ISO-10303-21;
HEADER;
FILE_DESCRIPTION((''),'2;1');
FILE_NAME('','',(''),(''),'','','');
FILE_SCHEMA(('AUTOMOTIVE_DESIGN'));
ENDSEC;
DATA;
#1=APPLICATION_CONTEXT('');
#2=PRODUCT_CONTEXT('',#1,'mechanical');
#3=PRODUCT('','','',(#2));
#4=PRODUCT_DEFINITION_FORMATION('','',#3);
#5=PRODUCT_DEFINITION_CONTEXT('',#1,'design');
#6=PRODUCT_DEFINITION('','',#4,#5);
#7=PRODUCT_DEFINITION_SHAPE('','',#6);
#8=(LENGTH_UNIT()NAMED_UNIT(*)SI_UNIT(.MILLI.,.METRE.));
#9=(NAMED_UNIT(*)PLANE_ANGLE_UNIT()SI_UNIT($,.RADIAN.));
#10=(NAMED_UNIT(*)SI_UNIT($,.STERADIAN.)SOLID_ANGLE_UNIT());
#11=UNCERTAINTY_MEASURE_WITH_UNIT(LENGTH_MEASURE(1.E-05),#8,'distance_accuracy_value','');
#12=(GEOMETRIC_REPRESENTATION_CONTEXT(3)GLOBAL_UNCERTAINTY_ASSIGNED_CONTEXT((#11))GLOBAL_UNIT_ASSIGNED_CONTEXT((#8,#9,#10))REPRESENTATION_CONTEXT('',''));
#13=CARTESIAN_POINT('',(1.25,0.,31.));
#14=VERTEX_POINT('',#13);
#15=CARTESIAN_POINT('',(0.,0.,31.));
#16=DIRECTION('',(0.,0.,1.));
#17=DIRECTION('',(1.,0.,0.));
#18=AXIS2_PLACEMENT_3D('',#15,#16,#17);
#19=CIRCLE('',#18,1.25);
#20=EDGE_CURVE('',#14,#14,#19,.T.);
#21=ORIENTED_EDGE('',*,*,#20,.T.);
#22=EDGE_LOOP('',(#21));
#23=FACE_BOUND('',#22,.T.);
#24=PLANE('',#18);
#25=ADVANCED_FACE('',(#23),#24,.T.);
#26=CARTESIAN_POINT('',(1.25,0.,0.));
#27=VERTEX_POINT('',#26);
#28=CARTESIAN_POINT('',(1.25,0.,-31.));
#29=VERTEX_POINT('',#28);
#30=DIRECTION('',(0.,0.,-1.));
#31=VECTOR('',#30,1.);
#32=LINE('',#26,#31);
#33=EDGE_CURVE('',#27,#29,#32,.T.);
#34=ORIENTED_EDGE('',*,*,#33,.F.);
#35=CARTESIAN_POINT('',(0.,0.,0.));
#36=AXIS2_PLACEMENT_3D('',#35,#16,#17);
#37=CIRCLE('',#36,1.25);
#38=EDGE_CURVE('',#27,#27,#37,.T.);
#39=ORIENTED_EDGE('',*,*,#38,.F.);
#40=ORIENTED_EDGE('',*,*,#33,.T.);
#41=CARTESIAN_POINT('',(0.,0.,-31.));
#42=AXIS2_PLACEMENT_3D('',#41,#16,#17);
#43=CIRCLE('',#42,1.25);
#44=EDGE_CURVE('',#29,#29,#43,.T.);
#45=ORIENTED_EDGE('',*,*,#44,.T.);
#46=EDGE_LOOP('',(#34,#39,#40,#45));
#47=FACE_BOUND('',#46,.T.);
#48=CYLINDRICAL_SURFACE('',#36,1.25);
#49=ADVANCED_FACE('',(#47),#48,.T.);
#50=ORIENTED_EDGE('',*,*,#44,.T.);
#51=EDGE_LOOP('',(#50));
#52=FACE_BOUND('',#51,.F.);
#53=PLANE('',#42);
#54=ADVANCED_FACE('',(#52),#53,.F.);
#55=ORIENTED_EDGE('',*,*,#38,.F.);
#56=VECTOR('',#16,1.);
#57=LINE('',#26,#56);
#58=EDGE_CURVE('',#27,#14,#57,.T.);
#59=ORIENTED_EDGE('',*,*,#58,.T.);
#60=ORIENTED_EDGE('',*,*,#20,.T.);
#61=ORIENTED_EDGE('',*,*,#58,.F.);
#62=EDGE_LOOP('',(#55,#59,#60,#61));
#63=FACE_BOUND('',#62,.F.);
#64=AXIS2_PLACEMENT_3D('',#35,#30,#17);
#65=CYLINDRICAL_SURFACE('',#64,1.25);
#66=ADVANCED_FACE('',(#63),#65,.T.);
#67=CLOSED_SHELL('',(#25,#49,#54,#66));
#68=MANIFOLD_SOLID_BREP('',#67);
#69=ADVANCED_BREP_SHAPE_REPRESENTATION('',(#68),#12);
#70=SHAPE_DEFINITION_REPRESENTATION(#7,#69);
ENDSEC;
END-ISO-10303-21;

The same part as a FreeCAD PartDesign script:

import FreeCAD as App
import Part
import Sketcher
Q = App.Units.Quantity

doc = App.newDocument("Part")
body = doc.addObject("PartDesign::Body", "Body")

# Sketch on XY plane
sketch1 = doc.addObject("Sketcher::SketchObject", "Sketch")
body.addObject(sketch1)
sketch1.AttachmentSupport = (doc.XY_Plane, [""])
sketch1.MapMode = "FlatFace"
sketch1.addGeometry(Part.Circle(App.Vector(0, 0, 0), App.Vector(0, 0, 1), 1.2), False)
sketch1.addConstraint([
    Sketcher.Constraint("Coincident", 0, 3, -1, 1),
    Sketcher.Constraint("Diameter", 0, Q("2.5 mm")),
])
pad1 = doc.addObject("PartDesign::Pad", "Pad")
body.addObject(pad1)
pad1.Profile = sketch1
pad1.Length = 62
pad1.Midplane = True

doc.recompute()
